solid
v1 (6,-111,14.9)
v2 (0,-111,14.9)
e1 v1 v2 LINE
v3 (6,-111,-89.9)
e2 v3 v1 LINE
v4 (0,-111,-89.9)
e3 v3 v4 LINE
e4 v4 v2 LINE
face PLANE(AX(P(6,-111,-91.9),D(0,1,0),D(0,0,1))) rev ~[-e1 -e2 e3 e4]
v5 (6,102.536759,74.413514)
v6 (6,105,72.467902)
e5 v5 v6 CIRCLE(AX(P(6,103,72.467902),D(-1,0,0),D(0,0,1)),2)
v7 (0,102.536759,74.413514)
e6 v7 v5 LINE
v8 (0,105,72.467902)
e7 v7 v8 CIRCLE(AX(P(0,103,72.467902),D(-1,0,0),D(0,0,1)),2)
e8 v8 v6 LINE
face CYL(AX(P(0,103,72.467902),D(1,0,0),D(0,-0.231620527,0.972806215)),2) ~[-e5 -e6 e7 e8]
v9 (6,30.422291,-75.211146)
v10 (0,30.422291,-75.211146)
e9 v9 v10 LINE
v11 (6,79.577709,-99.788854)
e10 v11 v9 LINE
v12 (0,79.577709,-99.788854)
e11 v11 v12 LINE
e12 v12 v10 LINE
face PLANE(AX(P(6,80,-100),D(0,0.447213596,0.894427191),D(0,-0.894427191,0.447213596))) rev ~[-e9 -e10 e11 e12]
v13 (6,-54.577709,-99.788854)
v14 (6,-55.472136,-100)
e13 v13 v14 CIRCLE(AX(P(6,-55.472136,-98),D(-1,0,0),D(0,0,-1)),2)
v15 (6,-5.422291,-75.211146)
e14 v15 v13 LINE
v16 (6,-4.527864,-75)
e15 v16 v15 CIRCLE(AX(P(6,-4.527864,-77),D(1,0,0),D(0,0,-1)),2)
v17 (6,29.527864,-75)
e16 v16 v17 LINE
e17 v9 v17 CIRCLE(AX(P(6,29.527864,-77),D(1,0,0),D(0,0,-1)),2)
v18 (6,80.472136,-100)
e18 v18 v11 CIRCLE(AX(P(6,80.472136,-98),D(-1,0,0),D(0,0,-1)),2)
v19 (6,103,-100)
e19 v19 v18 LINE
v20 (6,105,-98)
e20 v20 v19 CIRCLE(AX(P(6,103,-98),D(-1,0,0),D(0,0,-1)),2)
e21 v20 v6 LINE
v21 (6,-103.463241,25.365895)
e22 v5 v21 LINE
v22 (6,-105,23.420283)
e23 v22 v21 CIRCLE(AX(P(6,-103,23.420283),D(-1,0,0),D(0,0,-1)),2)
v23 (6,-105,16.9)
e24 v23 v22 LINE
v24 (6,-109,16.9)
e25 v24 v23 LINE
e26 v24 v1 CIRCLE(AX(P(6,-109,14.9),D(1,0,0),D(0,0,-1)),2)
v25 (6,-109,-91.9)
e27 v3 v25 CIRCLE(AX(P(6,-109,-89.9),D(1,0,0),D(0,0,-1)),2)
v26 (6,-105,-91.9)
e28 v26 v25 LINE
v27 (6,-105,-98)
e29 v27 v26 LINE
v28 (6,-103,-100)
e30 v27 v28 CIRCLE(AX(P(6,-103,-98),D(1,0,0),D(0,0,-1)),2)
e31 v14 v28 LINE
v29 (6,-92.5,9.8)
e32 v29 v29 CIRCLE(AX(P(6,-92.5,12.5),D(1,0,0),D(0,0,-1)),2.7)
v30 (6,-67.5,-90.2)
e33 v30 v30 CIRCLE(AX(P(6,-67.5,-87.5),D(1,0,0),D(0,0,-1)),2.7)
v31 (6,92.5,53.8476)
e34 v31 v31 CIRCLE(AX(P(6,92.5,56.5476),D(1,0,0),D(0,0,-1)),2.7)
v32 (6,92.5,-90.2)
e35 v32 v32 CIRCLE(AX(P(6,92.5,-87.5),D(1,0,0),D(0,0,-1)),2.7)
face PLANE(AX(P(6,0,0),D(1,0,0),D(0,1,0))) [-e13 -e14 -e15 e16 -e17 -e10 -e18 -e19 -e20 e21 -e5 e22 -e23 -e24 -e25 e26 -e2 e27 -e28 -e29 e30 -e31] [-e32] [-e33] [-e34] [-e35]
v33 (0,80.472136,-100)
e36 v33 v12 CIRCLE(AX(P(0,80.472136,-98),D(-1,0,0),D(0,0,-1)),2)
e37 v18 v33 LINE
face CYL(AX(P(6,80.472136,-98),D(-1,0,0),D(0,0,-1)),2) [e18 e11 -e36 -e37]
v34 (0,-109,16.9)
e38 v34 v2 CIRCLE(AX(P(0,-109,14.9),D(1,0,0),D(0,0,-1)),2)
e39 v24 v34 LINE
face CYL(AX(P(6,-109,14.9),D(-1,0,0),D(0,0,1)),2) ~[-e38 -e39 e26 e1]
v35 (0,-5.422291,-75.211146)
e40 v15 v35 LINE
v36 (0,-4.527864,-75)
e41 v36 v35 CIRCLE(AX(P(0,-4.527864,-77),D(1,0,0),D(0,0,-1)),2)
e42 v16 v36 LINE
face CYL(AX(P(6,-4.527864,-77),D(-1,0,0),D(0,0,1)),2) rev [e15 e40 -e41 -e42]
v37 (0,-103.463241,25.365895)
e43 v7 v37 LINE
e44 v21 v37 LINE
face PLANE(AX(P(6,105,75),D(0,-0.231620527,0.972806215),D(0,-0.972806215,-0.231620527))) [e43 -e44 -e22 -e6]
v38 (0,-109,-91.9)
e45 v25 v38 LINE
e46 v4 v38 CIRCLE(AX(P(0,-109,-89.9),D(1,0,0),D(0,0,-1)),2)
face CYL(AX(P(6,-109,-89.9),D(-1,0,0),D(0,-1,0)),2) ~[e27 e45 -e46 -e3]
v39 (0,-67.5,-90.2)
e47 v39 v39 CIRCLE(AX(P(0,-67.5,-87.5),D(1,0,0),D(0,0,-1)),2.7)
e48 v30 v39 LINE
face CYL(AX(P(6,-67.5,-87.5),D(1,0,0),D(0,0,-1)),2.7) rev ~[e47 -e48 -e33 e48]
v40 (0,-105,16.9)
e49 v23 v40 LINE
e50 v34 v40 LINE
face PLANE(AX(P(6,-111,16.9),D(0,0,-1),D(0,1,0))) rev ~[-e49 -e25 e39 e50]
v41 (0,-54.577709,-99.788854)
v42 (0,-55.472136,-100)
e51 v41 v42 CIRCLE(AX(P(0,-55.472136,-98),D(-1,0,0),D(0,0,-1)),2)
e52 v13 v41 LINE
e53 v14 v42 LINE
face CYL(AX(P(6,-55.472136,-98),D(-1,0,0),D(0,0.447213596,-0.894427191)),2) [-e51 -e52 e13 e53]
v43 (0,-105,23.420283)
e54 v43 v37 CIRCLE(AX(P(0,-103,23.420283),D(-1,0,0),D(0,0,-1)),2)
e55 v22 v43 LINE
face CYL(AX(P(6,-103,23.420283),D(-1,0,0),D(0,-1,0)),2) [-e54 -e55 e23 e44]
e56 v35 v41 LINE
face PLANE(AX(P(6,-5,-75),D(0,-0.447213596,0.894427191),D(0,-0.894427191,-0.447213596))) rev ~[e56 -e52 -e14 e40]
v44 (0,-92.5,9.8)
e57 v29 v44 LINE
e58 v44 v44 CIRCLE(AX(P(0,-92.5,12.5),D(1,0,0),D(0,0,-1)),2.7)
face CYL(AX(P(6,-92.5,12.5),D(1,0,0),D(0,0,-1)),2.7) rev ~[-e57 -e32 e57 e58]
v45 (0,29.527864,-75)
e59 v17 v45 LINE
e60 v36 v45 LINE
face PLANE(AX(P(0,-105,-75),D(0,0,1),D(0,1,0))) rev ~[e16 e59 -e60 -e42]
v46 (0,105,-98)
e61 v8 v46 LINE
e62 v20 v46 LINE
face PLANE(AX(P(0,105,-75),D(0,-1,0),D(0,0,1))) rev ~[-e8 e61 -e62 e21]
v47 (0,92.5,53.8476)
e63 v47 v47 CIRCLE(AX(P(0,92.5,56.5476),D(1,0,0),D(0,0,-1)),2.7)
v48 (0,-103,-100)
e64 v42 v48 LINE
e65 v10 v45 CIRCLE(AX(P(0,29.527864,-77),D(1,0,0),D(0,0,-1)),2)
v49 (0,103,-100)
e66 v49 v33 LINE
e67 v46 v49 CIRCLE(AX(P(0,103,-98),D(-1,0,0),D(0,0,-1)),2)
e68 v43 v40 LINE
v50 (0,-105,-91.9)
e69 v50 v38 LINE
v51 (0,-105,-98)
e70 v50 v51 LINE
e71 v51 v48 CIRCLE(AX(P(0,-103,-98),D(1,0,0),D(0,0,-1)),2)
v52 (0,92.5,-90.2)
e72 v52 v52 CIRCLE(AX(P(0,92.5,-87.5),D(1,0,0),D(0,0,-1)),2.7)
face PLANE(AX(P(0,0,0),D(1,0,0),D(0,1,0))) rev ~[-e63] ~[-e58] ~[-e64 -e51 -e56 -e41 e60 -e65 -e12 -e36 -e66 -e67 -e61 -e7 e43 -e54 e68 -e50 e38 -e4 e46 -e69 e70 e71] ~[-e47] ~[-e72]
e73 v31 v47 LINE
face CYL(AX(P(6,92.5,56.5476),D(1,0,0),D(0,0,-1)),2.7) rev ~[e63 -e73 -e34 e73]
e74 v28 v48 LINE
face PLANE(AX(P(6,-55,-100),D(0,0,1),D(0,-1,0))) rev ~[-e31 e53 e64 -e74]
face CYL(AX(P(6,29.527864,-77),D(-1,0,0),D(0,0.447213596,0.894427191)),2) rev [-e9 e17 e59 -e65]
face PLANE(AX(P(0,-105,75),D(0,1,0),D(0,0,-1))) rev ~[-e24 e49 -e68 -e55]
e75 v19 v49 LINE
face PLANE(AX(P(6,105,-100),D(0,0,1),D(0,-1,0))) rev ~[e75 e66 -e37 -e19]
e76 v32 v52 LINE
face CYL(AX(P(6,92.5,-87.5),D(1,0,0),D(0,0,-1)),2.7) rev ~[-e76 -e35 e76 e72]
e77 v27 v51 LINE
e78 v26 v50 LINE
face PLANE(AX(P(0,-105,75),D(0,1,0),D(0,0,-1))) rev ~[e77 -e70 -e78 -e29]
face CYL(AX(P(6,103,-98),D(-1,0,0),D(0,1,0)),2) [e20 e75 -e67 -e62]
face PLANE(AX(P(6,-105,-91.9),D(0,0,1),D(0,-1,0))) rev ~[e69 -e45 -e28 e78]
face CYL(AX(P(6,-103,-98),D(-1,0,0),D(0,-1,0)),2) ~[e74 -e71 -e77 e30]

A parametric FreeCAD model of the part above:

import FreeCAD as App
import Part
import Sketcher

V = App.Vector


def edges_at(feature, points):
    """Names of the edges that pass closest to the given points."""
    edges = feature.Shape.Edges
    near = lambda p: min(range(len(edges)), key=lambda i: edges[i].distToShape(Part.Vertex(*p))[0])
    return sorted({f"Edge{near(p) + 1}" for p in points})


def add_polygon(sketch, points):
    """Adds a closed chain of lines whose ends are joined by coincident constraints."""
    first, n = sketch.GeometryCount, len(points)
    for a, b in zip(points, points[1:] + points[:1]):
        sketch.addGeometry(Part.LineSegment(App.Vector(*a, 0), App.Vector(*b, 0)), False)
    for i in range(n):
        sketch.addConstraint(Sketcher.Constraint("Coincident", first + i, 2, first + (i + 1) % n, 1))

doc = App.newDocument("Part")
body = doc.addObject("PartDesign::Body", "Body")

# Sketch on YZ plane
sketch1 = body.newObject("Sketcher::SketchObject", "Sketch")
sketch1.AttachmentSupport = (doc.getObject("YZ_Plane"), [""])
sketch1.MapMode = "FlatFace"
add_polygon(sketch1, [(-105, 75), (-105, -75), (105, -75), (105, 75)])  # lines 0-3
sketch1.addConstraint(Sketcher.Constraint("Vertical", 0))
sketch1.addConstraint(Sketcher.Constraint("Horizontal", 1))
sketch1.addConstraint(Sketcher.Constraint("Vertical", 2))
sketch1.addConstraint(Sketcher.Constraint("Horizontal", 3))
sketch1.addConstraint(Sketcher.Constraint("Symmetric", 0, 2, 2, 2, -1, 1))
sketch1.addConstraint(Sketcher.Constraint("DistanceX", 1, 1, 1, 2, 210.0))
sketch1.addConstraint(Sketcher.Constraint("DistanceY", 0, 2, 0, 1, 150.0))
pad1 = body.newObject("PartDesign::Pad", "Pad")
pad1.Profile = sketch1
pad1.Length = 6

# Sketch on YZ plane
sketch2 = body.newObject("Sketcher::SketchObject", "Sketch001")
sketch2.AttachmentSupport = (doc.getObject("YZ_Plane"), [""])
sketch2.MapMode = "FlatFace"
sketch2.AttachmentOffset = App.Placement(V(0, 0, 6), App.Rotation())
add_polygon(sketch2, [(105, -75), (30, -75), (80, -100), (105, -100)])  # lines 0-3
add_polygon(sketch2, [(-5, -75), (-105, -75), (-105, -100), (-55, -100)])  # lines 4-7
sketch2.addConstraint(Sketcher.Constraint("Horizontal", 0))
sketch2.addConstraint(Sketcher.Constraint("Horizontal", 2))
sketch2.addConstraint(Sketcher.Constraint("Vertical", 3))
sketch2.addConstraint(Sketcher.Constraint("Horizontal", 4))
sketch2.addConstraint(Sketcher.Constraint("Vertical", 5))
sketch2.addConstraint(Sketcher.Constraint("Horizontal", 6))
sketch2.addConstraint(Sketcher.Constraint("Symmetric", 3, 2, 4, 2, -2))
sketch2.addConstraint(Sketcher.Constraint("Horizontal", 2, 2, 5, 2))
sketch2.addConstraint(Sketcher.Constraint("Equal", 2, 3))
sketch2.addConstraint(Sketcher.Constraint("Equal", 1, 7))
sketch2.addConstraint(Sketcher.Constraint("DistanceX", 2, 1, 2, 2, 25.0))
sketch2.addConstraint(Sketcher.Constraint("DistanceX", 6, 1, 6, 2, 50.0))
sketch2.addConstraint(Sketcher.Constraint("DistanceX", 0, 2, 1, 2, 50.0))
sketch2.addConstraint(Sketcher.Constraint("DistanceX", -1, 1, 0, 2, 30.0))
sketch2.addConstraint(Sketcher.Constraint("DistanceY", 0, 2, -1, 1, 75.0))
pad2 = body.newObject("PartDesign::Pad", "Pad001")
pad2.Profile = sketch2
pad2.Length = 6
pad2.Reversed = True

# Sketch on YZ plane
sketch3 = body.newObject("Sketcher::SketchObject", "Sketch002")
sketch3.AttachmentSupport = (doc.getObject("YZ_Plane"), [""])
sketch3.MapMode = "FlatFace"
sketch3.AttachmentOffset = App.Placement(V(0, 0, 6), App.Rotation())
add_polygon(sketch3, [(-105, 25), (105, 75), (-105, 75)])  # lines 0-2
sketch3.addConstraint(Sketcher.Constraint("Horizontal", 1))
sketch3.addConstraint(Sketcher.Constraint("Vertical", 2))
sketch3.addConstraint(Sketcher.Constraint("DistanceY", 2, 2, 2, 1, 50.0))
sketch3.addConstraint(Sketcher.Constraint("DistanceX", 1, 2, 1, 1, 210.0))
sketch3.addConstraint(Sketcher.Constraint("DistanceX", -1, 1, 0, 2, 105.0))
sketch3.addConstraint(Sketcher.Constraint("DistanceY", -1, 1, 0, 2, 75.0))
pocket1 = body.newObject("PartDesign::Pocket", "Pocket")
pocket1.Profile = sketch3
pocket1.Type = "ThroughAll"

# Sketch on YZ plane
sketch4 = body.newObject("Sketcher::SketchObject", "Sketch003")
sketch4.AttachmentSupport = (doc.getObject("YZ_Plane"), [""])
sketch4.MapMode = "FlatFace"
sketch4.AttachmentOffset = App.Placement(V(0, 0, 6), App.Rotation())
add_polygon(sketch4, [(-105, -92), (-105, 17), (-111, 17), (-111, -92)])  # lines 0-3
sketch4.addConstraint(Sketcher.Constraint("Vertical", 0))
sketch4.addConstraint(Sketcher.Constraint("Horizontal", 1))
sketch4.addConstraint(Sketcher.Constraint("Vertical", 2))
sketch4.addConstraint(Sketcher.Constraint("Horizontal", 3))
sketch4.addConstraint(Sketcher.Constraint("DistanceX", 1, 2, 1, 1, 6.0))
sketch4.addConstraint(Sketcher.Constraint("DistanceY", 0, 1, 0, 2, 108.8))
sketch4.addConstraint(Sketcher.Constraint("DistanceX", 0, 2, -1, 1, 105.0))
sketch4.addConstraint(Sketcher.Constraint("DistanceY", -1, 1, 0, 2, 16.9))
pad3 = body.newObject("PartDesign::Pad", "Pad002")
pad3.Profile = sketch4
pad3.Length = 6
pad3.Reversed = True

# Sketch on YZ plane
sketch5 = body.newObject("Sketcher::SketchObject", "Sketch004")
sketch5.AttachmentSupport = (doc.getObject("YZ_Plane"), [""])
sketch5.MapMode = "FlatFace"
sketch5.AttachmentOffset = App.Placement(V(0, 0, 6), App.Rotation())
sketch5.addGeometry(Part.Circle(V(-92.5, 12.5, 0), V(0, 0, 1), 2.7), False)
sketch5.addGeometry(Part.Circle(V(-67.5, -87.5, 0), V(0, 0, 1), 2.7), False)
sketch5.addGeometry(Part.Circle(V(92.5, -87.5, 0), V(0, 0, 1), 2.7), False)
sketch5.addGeometry(Part.Circle(V(92.5, 56.5, 0), V(0, 0, 1), 2.7), False)
sketch5.addConstraint(Sketcher.Constraint("Equal", 0, 1))
sketch5.addConstraint(Sketcher.Constraint("Equal", 1, 2))
sketch5.addConstraint(Sketcher.Constraint("Equal", 2, 3))
sketch5.addConstraint(Sketcher.Constraint("Horizontal", 1, 3, 2, 3))
sketch5.addConstraint(Sketcher.Constraint("Vertical", 2, 3, 3, 3))
sketch5.addConstraint(Sketcher.Constraint("Diameter", 0, 5.4))
sketch5.addConstraint(Sketcher.Constraint("DistanceY", -1, 1, 0, 3, 12.5))
sketch5.addConstraint(Sketcher.Constraint("DistanceX", 0, 3, 1, 3, 25.0))
sketch5.addConstraint(Sketcher.Constraint("DistanceY", 1, 3, 0, 3, 100.0))
sketch5.addConstraint(Sketcher.Constraint("DistanceX", 1, 3, 2, 3, 160.0))
sketch5.addConstraint(Sketcher.Constraint("DistanceX", 0, 3, -1, 1, 92.5))
sketch5.addConstraint(Sketcher.Constraint("DistanceY", -1, 1, 3, 3, 56.5476))
pocket2 = body.newObject("PartDesign::Pocket", "Pocket001")
pocket2.Profile = sketch5
pocket2.Type = "ThroughAll"
doc.recompute()

fillet = body.newObject("PartDesign::Fillet", "Fillet")
fillet.Base = (pocket2, edges_at(pocket2, [
    (3, -111, 16.9),
    (3, -105, 25),
    (3, -111, -91.9),
    (3, -105, -100),
    (3, 105, 75),
    (3, 105, -100),
    (3, 80, -100),
    (3, 30, -75),
    (3, -5, -75),
    (3, -55, -100),
]))
fillet.Radius = 2

doc.recompute()
